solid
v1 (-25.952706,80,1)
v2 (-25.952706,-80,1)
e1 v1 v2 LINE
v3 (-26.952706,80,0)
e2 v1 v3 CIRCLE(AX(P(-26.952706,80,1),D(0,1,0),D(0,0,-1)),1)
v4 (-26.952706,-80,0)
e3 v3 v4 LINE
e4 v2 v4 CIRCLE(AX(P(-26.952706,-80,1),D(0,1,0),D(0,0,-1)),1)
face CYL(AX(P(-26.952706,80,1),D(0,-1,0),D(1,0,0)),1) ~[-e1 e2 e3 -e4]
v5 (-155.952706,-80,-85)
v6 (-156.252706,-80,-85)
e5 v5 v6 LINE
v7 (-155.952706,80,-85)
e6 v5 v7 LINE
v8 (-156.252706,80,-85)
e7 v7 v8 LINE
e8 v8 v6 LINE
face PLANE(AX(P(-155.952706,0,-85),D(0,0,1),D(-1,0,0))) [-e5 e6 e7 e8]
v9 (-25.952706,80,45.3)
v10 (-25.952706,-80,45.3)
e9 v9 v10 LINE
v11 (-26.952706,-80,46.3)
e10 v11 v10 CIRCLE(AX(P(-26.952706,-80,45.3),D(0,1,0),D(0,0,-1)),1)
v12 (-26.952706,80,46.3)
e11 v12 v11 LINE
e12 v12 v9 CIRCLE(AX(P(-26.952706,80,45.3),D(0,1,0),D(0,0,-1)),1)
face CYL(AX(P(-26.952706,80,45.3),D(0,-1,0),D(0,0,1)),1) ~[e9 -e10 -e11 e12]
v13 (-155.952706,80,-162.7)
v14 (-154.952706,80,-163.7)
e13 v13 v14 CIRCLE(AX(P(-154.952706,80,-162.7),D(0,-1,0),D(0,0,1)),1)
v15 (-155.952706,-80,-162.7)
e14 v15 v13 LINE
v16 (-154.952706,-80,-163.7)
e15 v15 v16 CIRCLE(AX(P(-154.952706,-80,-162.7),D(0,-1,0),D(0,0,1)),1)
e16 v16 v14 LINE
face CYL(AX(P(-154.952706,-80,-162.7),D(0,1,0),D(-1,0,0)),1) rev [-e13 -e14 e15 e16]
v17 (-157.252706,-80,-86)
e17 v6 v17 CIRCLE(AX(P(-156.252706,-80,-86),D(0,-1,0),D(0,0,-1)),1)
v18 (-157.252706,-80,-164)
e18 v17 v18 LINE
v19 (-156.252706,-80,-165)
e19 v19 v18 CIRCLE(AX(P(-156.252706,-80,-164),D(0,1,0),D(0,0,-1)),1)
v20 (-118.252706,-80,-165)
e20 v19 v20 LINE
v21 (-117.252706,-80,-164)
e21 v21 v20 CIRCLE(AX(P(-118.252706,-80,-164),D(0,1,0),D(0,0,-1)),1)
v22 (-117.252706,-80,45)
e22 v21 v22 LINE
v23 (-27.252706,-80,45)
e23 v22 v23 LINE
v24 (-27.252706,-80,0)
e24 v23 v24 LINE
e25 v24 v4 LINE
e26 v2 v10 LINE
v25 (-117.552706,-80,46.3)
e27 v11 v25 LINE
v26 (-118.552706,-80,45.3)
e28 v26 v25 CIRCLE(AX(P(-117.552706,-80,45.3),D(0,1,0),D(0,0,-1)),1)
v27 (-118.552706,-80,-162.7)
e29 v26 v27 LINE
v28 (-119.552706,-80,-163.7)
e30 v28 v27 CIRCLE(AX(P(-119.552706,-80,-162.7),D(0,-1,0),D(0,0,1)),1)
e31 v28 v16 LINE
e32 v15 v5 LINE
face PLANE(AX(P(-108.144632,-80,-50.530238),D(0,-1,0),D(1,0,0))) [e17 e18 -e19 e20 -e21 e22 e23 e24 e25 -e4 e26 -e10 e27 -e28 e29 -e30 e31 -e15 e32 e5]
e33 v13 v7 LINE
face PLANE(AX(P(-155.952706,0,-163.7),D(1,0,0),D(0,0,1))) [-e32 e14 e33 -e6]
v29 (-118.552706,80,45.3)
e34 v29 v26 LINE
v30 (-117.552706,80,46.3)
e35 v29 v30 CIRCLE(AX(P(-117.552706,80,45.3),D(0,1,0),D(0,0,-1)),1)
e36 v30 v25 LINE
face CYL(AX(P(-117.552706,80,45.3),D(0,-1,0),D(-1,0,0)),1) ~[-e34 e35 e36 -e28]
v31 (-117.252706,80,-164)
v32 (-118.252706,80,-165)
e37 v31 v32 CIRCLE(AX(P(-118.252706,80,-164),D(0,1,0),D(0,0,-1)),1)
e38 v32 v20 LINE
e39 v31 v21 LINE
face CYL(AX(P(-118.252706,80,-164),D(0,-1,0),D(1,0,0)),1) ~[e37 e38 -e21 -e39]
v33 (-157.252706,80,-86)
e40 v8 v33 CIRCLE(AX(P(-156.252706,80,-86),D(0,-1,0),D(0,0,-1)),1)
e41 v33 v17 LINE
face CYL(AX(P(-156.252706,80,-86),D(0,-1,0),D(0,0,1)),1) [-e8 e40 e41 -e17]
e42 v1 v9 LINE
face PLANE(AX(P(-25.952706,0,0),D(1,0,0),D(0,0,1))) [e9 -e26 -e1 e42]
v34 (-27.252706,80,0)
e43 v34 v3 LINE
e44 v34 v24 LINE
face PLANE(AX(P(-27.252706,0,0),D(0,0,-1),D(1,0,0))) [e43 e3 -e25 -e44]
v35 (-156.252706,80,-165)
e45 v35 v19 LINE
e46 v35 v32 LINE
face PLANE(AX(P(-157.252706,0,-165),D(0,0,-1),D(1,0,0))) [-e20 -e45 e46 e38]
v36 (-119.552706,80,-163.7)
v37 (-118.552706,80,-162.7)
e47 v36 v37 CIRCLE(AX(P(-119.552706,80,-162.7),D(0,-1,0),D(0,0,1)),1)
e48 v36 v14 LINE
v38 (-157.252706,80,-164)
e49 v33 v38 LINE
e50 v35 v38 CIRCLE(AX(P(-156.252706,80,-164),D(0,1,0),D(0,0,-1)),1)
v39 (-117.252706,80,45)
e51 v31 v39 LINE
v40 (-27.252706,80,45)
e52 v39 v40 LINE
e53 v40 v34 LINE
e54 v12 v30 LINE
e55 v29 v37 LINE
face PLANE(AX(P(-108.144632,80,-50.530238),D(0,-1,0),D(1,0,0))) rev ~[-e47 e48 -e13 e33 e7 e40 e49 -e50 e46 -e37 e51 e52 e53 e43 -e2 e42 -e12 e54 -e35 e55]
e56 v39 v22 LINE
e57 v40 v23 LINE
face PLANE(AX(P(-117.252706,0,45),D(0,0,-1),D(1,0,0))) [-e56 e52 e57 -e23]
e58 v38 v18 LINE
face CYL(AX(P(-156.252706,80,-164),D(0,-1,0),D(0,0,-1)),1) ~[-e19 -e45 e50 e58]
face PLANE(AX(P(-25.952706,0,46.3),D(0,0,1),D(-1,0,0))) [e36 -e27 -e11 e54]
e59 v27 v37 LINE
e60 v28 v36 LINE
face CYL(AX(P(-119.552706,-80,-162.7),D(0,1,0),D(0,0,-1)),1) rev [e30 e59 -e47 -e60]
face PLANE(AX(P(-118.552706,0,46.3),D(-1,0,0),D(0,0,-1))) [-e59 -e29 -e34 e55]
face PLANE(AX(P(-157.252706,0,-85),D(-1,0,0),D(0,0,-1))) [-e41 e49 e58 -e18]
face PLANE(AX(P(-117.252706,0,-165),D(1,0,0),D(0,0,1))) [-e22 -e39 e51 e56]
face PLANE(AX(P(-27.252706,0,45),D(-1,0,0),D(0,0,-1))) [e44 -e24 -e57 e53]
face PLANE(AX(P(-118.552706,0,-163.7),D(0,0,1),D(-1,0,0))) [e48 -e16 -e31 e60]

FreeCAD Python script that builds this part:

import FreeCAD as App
import Part
import Sketcher
from FreeCAD import Vector


def edges_at(feature, points):
    """Names of the edges that pass closest to the given points."""
    edges = feature.Shape.Edges
    near = lambda p: min(range(len(edges)), key=lambda i: edges[i].distToShape(Part.Vertex(*p))[0])
    return sorted({f"Edge{near(p) + 1}" for p in points})

doc = App.newDocument("Part")
body = doc.addObject("PartDesign::Body", "Body")

# Sketch on XZ plane
sketch1 = body.newObject("Sketcher::SketchObject", "Sketch")
sketch1.AttachmentSupport = (doc.getObject("XZ_Plane"), [""])
sketch1.MapMode = "FlatFace"
sketch1.addGeometry([
    Part.LineSegment(Vector(-155.952706, -85, 0), Vector(-157.252706, -85, 0)),  # 0
    Part.LineSegment(Vector(-157.252706, -85, 0), Vector(-157.252706, -165, 0)),  # 1
    Part.LineSegment(Vector(-157.252706, -165, 0), Vector(-117.252706, -165, 0)),  # 2
    Part.LineSegment(Vector(-117.252706, -165, 0), Vector(-117.252706, 45, 0)),  # 3
    Part.LineSegment(Vector(-117.252706, 45, 0), Vector(-27.252706, 45, 0)),  # 4
    Part.LineSegment(Vector(-27.252706, 45, 0), Vector(-27.252706, 0, 0)),  # 5
    Part.LineSegment(Vector(-27.252706, 0, 0), Vector(-25.952706, 0, 0)),  # 6
    Part.LineSegment(Vector(-25.952706, 0, 0), Vector(-25.952706, 46.3, 0)),  # 7
    Part.LineSegment(Vector(-25.952706, 46.3, 0), Vector(-118.552706, 46.3, 0)),  # 8
    Part.LineSegment(Vector(-118.552706, 46.3, 0), Vector(-118.552706, -163.7, 0)),  # 9
    Part.LineSegment(Vector(-118.552706, -163.7, 0), Vector(-155.952706, -163.7, 0)),  # 10
    Part.LineSegment(Vector(-155.952706, -163.7, 0), Vector(-155.952706, -85, 0)),  # 11
], False)
sketch1.addConstraint([
    Sketcher.Constraint("Coincident", 0, 2, 1, 1),
    Sketcher.Constraint("Coincident", 1, 2, 2, 1),
    Sketcher.Constraint("Coincident", 2, 2, 3, 1),
    Sketcher.Constraint("Coincident", 3, 2, 4, 1),
    Sketcher.Constraint("Coincident", 4, 2, 5, 1),
    Sketcher.Constraint("Coincident", 5, 2, 6, 1),
    Sketcher.Constraint("Coincident", 6, 2, 7, 1),
    Sketcher.Constraint("Coincident", 7, 2, 8, 1),
    Sketcher.Constraint("Coincident", 8, 2, 9, 1),
    Sketcher.Constraint("Coincident", 9, 2, 10, 1),
    Sketcher.Constraint("Coincident", 10, 2, 11, 1),
    Sketcher.Constraint("Coincident", 11, 2, 0, 1),
    Sketcher.Constraint("Horizontal", 0),
    Sketcher.Constraint("Vertical", 1),
    Sketcher.Constraint("Horizontal", 2),
    Sketcher.Constraint("Vertical", 3),
    Sketcher.Constraint("Horizontal", 4),
    Sketcher.Constraint("Vertical", 5),
    Sketcher.Constraint("Horizontal", 6),
    Sketcher.Constraint("Vertical", 7),
    Sketcher.Constraint("Horizontal", 8),
    Sketcher.Constraint("Vertical", 9),
    Sketcher.Constraint("Horizontal", 10),
    Sketcher.Constraint("Vertical", 11),
    Sketcher.Constraint("PointOnObject", 5, 2, -1),
    Sketcher.Constraint("Equal", 0, 6),
    Sketcher.Constraint("Equal", 3, 9),
    Sketcher.Constraint("DistanceX", 2, 1, 2, 2, 40.0),
    Sketcher.Constraint("DistanceX", 4, 1, 4, 2, 90.0),
    Sketcher.Constraint("DistanceY", 1, 2, 1, 1, 80.0),
    Sketcher.Constraint("DistanceY", 3, 1, 3, 2, 210.0),
    Sketcher.Constraint("DistanceY", 5, 2, 5, 1, 45.0),
    Sketcher.Constraint("DistanceX", 0, 2, 0, 1, 1.3),
    Sketcher.Constraint("DistanceX", 8, 2, 8, 1, 92.6),
    Sketcher.Constraint("DistanceY", 7, 1, 7, 2, 46.3),
    Sketcher.Constraint("DistanceX", 0, 2, -1, 1, 157.252706),
])
pad1 = body.newObject("PartDesign::Pad", "Pad")
pad1.Profile = sketch1
pad1.Length = 160
pad1.Midplane = True
doc.recompute()

fillet = body.newObject("PartDesign::Fillet", "Fillet")
fillet.Base = (pad1, edges_at(pad1, [
    (-118.553, 0, 46.3),
    (-25.953, 0, 46.3),
    (-117.253, 0, -165),
    (-157.253, 0, -165),
    (-25.953, 0, 0),
    (-157.253, 0, -85),
    (-155.953, 0, -163.7),
    (-118.553, 0, -163.7),
]))
fillet.Radius = 1

doc.recompute()
